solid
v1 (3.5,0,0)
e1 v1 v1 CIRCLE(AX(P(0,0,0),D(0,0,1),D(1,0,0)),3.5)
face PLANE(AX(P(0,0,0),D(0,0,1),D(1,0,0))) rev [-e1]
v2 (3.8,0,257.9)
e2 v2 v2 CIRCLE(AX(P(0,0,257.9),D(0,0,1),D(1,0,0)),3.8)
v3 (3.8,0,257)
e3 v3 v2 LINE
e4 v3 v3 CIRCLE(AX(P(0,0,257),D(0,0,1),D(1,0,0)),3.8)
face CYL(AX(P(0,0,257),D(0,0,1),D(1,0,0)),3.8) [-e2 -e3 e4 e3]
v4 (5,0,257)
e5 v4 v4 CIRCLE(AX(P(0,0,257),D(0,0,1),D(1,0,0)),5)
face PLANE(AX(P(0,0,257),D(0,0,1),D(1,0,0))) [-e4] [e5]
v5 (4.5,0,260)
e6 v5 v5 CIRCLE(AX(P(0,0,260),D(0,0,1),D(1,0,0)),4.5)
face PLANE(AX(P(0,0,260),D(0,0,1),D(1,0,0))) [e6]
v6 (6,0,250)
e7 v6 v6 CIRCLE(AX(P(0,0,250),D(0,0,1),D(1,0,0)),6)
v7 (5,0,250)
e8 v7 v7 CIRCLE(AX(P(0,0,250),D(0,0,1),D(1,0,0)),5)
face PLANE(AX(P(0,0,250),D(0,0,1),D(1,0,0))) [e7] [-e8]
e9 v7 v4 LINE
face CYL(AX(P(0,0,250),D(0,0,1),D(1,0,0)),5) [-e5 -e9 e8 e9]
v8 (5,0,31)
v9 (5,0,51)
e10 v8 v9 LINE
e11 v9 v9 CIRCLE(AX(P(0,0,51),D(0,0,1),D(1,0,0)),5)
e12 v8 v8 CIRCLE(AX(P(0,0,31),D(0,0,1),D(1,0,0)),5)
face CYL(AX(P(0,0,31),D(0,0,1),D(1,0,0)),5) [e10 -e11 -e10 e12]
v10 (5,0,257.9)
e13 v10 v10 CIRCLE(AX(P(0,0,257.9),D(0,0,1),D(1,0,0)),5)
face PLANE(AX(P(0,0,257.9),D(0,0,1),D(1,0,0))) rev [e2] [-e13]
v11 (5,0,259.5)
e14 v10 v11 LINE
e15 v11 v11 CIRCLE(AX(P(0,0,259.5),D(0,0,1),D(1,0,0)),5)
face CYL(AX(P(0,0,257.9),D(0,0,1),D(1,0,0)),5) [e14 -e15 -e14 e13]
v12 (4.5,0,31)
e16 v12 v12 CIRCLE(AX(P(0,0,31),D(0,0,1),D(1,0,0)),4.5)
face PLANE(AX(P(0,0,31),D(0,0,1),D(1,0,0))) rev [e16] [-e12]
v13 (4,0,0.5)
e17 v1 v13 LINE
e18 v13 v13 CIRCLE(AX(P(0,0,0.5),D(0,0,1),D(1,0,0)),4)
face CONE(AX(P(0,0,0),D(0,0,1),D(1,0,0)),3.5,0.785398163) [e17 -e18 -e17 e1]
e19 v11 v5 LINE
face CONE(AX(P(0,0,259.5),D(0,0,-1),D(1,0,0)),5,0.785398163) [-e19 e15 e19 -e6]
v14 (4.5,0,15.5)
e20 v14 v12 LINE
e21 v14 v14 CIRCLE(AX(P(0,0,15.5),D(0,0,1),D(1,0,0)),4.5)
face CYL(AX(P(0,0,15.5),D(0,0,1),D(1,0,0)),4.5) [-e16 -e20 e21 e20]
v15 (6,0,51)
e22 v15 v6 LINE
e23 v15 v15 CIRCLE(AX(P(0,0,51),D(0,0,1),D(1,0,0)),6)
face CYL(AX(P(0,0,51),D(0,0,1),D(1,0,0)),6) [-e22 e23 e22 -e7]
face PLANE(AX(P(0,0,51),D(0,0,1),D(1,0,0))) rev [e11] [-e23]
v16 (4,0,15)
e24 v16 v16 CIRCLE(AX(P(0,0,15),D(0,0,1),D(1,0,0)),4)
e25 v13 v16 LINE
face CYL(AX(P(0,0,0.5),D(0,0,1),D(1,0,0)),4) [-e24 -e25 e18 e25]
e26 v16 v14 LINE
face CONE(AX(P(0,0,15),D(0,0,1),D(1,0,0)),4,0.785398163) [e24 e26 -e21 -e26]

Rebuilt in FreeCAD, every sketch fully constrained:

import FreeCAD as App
import Part
import Sketcher
from FreeCAD import Vector
Q = App.Units.Quantity


def add_polygon(sketch, points):
    """Adds a closed chain of lines whose ends are joined by coincident constraints."""
    first, n = sketch.GeometryCount, len(points)
    for a, b in zip(points, points[1:] + points[:1]):
        sketch.addGeometry(Part.LineSegment(App.Vector(*a, 0), App.Vector(*b, 0)), False)
    for i in range(n):
        sketch.addConstraint(Sketcher.Constraint("Coincident", first + i, 2, first + (i + 1) % n, 1))

doc = App.newDocument("Part")
body = doc.addObject("PartDesign::Body", "Body")

# Sketch on XZ plane
sketch1 = body.newObject("Sketcher::SketchObject", "Sketch")
sketch1.AttachmentSupport = (doc.getObject("XZ_Plane"), [""])
sketch1.MapMode = "FlatFace"
add_polygon(sketch1, [(0, 260), (0, 0), (3.5, 0), (4, 0.5), (4, 15), (4.5, 15.5), (4.5, 31), (5, 31), (5, 51), (6, 51), (6, 250), (5, 250), (5, 257), (3.8, 257), (3.8, 257.9), (5, 257.9), (5, 259.5), (4.5, 260)])  # lines 0-17
sketch1.addConstraint([
    Sketcher.Constraint("Vertical", 0),
    Sketcher.Constraint("Horizontal", 1),
    Sketcher.Constraint("Vertical", 3),
    Sketcher.Constraint("Vertical", 5),
    Sketcher.Constraint("Horizontal", 6),
    Sketcher.Constraint("Vertical", 7),
    Sketcher.Constraint("Horizontal", 8),
    Sketcher.Constraint("Vertical", 9),
    Sketcher.Constraint("Horizontal", 10),
    Sketcher.Constraint("Vertical", 11),
    Sketcher.Constraint("Horizontal", 12),
    Sketcher.Constraint("Vertical", 13),
    Sketcher.Constraint("Horizontal", 14),
    Sketcher.Constraint("Vertical", 15),
    Sketcher.Constraint("Horizontal", 17),
    Sketcher.Constraint("Coincident", 0, 2, -1, 1),
    Sketcher.Constraint("Parallel", 2, 4),
    Sketcher.Constraint("Perpendicular", 4, 16),
    Sketcher.Constraint("Vertical", 7, 2, 10, 2),
    Sketcher.Constraint("Vertical", 11, 2, 14, 2),
    Sketcher.Constraint("Vertical", 5, 2, 16, 2),
    Sketcher.Constraint("Equal", 2, 4),
    Sketcher.Constraint("Equal", 4, 16),
    Sketcher.Constraint("DistanceX", 8, 1, 8, 2, 1.0),
    Sketcher.Constraint("DistanceY", 0, 2, 0, 1, 260.0),
    Sketcher.Constraint("DistanceY", 7, 1, 7, 2, 20.0),
    Sketcher.Constraint("DistanceY", 9, 1, 9, 2, 199.0),
    Sketcher.Constraint("DistanceY", 11, 1, 11, 2, 7.0),
    Sketcher.Constraint("Angle", 2, Q("45 deg")),
    Sketcher.Constraint("DistanceX", 1, 1, 1, 2, 3.5),
    Sketcher.Constraint("DistanceX", 6, 1, 6, 2, 0.5),
    Sketcher.Constraint("DistanceX", 12, 2, 12, 1, 1.2),
    Sketcher.Constraint("DistanceY", 3, 1, 3, 2, 14.5),
    Sketcher.Constraint("DistanceY", 5, 1, 5, 2, 15.5),
    Sketcher.Constraint("DistanceY", 13, 1, 13, 2, 0.9),
])
revolution = body.newObject("PartDesign::Revolution", "Revolution")
revolution.Profile = sketch1
revolution.ReferenceAxis = (sketch1, ["V_Axis"])
revolution.Angle = 360

doc.recompute()
